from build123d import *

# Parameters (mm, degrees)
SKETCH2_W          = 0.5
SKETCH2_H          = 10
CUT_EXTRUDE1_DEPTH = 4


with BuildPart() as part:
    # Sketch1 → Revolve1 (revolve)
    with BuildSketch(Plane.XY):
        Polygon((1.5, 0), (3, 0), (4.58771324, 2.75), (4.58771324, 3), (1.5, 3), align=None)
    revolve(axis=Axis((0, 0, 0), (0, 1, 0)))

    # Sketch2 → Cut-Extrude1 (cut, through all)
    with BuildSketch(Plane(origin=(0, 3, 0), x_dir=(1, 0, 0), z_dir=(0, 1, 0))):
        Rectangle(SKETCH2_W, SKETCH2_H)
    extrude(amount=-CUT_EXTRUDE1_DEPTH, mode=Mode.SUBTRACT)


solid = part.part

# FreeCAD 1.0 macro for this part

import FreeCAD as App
import Part
import Sketcher
from FreeCAD import Vector
Q = App.Units.Quantity

doc = App.newDocument("Part")
body = doc.addObject("PartDesign::Body", "Body")
body.AllowCompound = True

sketch1 = body.newObject("Sketcher::SketchObject", "Sketch")
sketch1.AttachmentSupport = (doc.getObject("XY_Plane"), [""])
sketch1.MapMode = "FlatFace"
sketch1.addGeometry(Part.LineSegment(Vector(1.5, 0, 0), Vector(3, 0, 0)), False)
sketch1.addGeometry(Part.LineSegment(Vector(3, 0, 0), Vector(4.59, 2.75, 0)), False)
sketch1.addGeometry(Part.LineSegment(Vector(4.59, 2.75, 0), Vector(4.59, 3, 0)), False)
sketch1.addGeometry(Part.LineSegment(Vector(4.59, 3, 0), Vector(1.5, 3, 0)), False)
sketch1.addGeometry(Part.LineSegment(Vector(1.5, 3, 0), Vector(1.5, 0, 0)), False)
sketch1.addConstraint(Sketcher.Constraint("Coincident", 0, 2, 1, 1))
sketch1.addConstraint(Sketcher.Constraint("Coincident", 1, 2, 2, 1))
sketch1.addConstraint(Sketcher.Constraint("Coincident", 2, 2, 3, 1))
sketch1.addConstraint(Sketcher.Constraint("Coincident", 3, 2, 4, 1))
sketch1.addConstraint(Sketcher.Constraint("Coincident", 4, 2, 0, 1))
sketch1.addConstraint(Sketcher.Constraint("Horizontal", 0))
sketch1.addConstraint(Sketcher.Constraint("Vertical", 2))
sketch1.addConstraint(Sketcher.Constraint("Horizontal", 3))
sketch1.addConstraint(Sketcher.Constraint("Vertical", 4))
sketch1.addConstraint(Sketcher.Constraint("PointOnObject", 0, 2, -1))
sketch1.addConstraint(Sketcher.Constraint("DistanceY", 4, 2, 4, 1, 3.0))
sketch1.addConstraint(Sketcher.Constraint("Angle", 1, Q("60 deg")))
sketch1.addConstraint(Sketcher.Constraint("DistanceX", 0, 1, 0, 2, 1.5))
sketch1.addConstraint(Sketcher.Constraint("DistanceX", -1, 1, 0, 2, 3.0))
sketch1.addConstraint(Sketcher.Constraint("DistanceY", 2, 1, 2, 2, 0.25))
revolution = body.newObject("PartDesign::Revolution", "Revolution")
revolution.Profile = sketch1
revolution.ReferenceAxis = (sketch1, ["V_Axis"])
revolution.Angle = 360

sketch2 = body.newObject("Sketcher::SketchObject", "Sketch001")
sketch2.AttachmentSupport = (doc.getObject("XZ_Plane"), [""])
sketch2.MapMode = "FlatFace"
sketch2.AttachmentOffset = App.Placement(Vector(0, 0, -3), App.Rotation())
sketch2.addGeometry(Part.LineSegment(Vector(-0.2, -5, 0), Vector(-0.2, 5, 0)), False)
sketch2.addGeometry(Part.LineSegment(Vector(-0.2, 5, 0), Vector(0.2, 5, 0)), False)
sketch2.addGeometry(Part.LineSegment(Vector(0.2, 5, 0), Vector(0.2, -5, 0)), False)
sketch2.addGeometry(Part.LineSegment(Vector(0.2, -5, 0), Vector(-0.2, -5, 0)), False)
sketch2.addConstraint(Sketcher.Constraint("Coincident", 0, 2, 1, 1))
sketch2.addConstraint(Sketcher.Constraint("Coincident", 1, 2, 2, 1))
sketch2.addConstraint(Sketcher.Constraint("Coincident", 2, 2, 3, 1))
sketch2.addConstraint(Sketcher.Constraint("Coincident", 3, 2, 0, 1))
sketch2.addConstraint(Sketcher.Constraint("Vertical", 0))
sketch2.addConstraint(Sketcher.Constraint("Horizontal", 1))
sketch2.addConstraint(Sketcher.Constraint("Vertical", 2))
sketch2.addConstraint(Sketcher.Constraint("Horizontal", 3))
sketch2.addConstraint(Sketcher.Constraint("Symmetric", 0, 2, 2, 2, -1, 1))
sketch2.addConstraint(Sketcher.Constraint("DistanceY", 0, 1, 0, 2, 10.0))
sketch2.addConstraint(Sketcher.Constraint("DistanceX", 1, 1, 1, 2, 0.5))
pocket1 = body.newObject("PartDesign::Pocket", "Pocket")
pocket1.Profile = sketch2
pocket1.Type = "ThroughAll"
pocket1.Reversed = True

doc.recompute()
